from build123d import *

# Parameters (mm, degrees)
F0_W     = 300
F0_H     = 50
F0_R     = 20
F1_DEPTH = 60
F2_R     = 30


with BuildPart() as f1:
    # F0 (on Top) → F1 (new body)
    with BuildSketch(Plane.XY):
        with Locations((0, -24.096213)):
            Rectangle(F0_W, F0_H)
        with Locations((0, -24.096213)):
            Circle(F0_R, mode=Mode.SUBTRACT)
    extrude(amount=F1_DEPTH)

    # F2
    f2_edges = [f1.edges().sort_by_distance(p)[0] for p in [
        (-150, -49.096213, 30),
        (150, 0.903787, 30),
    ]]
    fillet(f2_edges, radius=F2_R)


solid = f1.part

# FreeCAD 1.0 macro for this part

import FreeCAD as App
import Part
import Sketcher
Q = App.Units.Quantity


def edges_at(feature, points):
    """Names of the edges that pass closest to the given points."""
    edges = feature.Shape.Edges
    near = lambda p: min(range(len(edges)), key=lambda i: edges[i].distToShape(Part.Vertex(*p))[0])
    return sorted({f"Edge{near(p) + 1}" for p in points})


def add_polygon(sketch, points):
    """Adds a closed chain of lines whose ends are joined by coincident constraints."""
    first, n = sketch.GeometryCount, len(points)
    for a, b in zip(points, points[1:] + points[:1]):
        sketch.addGeometry(Part.LineSegment(App.Vector(*a, 0), App.Vector(*b, 0)), False)
    for i in range(n):
        sketch.addConstraint(Sketcher.Constraint("Coincident", first + i, 2, first + (i + 1) % n, 1))

doc = App.newDocument("Part")
body = doc.addObject("PartDesign::Body", "Body")

sketch1 = body.newObject("Sketcher::SketchObject", "Sketch")
sketch1.AttachmentSupport = (doc.getObject("XY_Plane"), [""])
sketch1.MapMode = "FlatFace"
add_polygon(sketch1, [(-150, 1), (-150, -49), (150, -49), (150, 1)])
sketch1.addGeometry(Part.Circle(App.Vector(0, -24, 0), App.Vector(0, 0, 1), 20), False)
sketch1.addConstraint([
    Sketcher.Constraint("Vertical", 0),
    Sketcher.Constraint("Horizontal", 1),
    Sketcher.Constraint("Vertical", 2),
    Sketcher.Constraint("Horizontal", 3),
    Sketcher.Constraint("PointOnObject", 4, 3, -2),
    Sketcher.Constraint("Diameter", 4, Q("40 mm")),
    Sketcher.Constraint("DistanceX", 1, 1, 1, 2, Q("300 mm")),
    Sketcher.Constraint("DistanceY", 0, 2, 0, 1, Q("50 mm")),
    Sketcher.Constraint("DistanceX", 0, 2, -1, 1, Q("150 mm")),
    Sketcher.Constraint("DistanceY", 0, 2, 4, 3, Q("25 mm")),
    Sketcher.Constraint("DistanceY", 4, 3, -1, 1, Q("24.096213 mm")),
])
pad1 = body.newObject("PartDesign::Pad", "Pad")
pad1.Profile = sketch1
pad1.Length = 60
doc.recompute()

fillet = body.newObject("PartDesign::Fillet", "Fillet")
fillet.Base = (pad1, edges_at(pad1, [(-150, -49.096, 30), (150, 0.904, 30)]))
fillet.Radius = 30

doc.recompute()
